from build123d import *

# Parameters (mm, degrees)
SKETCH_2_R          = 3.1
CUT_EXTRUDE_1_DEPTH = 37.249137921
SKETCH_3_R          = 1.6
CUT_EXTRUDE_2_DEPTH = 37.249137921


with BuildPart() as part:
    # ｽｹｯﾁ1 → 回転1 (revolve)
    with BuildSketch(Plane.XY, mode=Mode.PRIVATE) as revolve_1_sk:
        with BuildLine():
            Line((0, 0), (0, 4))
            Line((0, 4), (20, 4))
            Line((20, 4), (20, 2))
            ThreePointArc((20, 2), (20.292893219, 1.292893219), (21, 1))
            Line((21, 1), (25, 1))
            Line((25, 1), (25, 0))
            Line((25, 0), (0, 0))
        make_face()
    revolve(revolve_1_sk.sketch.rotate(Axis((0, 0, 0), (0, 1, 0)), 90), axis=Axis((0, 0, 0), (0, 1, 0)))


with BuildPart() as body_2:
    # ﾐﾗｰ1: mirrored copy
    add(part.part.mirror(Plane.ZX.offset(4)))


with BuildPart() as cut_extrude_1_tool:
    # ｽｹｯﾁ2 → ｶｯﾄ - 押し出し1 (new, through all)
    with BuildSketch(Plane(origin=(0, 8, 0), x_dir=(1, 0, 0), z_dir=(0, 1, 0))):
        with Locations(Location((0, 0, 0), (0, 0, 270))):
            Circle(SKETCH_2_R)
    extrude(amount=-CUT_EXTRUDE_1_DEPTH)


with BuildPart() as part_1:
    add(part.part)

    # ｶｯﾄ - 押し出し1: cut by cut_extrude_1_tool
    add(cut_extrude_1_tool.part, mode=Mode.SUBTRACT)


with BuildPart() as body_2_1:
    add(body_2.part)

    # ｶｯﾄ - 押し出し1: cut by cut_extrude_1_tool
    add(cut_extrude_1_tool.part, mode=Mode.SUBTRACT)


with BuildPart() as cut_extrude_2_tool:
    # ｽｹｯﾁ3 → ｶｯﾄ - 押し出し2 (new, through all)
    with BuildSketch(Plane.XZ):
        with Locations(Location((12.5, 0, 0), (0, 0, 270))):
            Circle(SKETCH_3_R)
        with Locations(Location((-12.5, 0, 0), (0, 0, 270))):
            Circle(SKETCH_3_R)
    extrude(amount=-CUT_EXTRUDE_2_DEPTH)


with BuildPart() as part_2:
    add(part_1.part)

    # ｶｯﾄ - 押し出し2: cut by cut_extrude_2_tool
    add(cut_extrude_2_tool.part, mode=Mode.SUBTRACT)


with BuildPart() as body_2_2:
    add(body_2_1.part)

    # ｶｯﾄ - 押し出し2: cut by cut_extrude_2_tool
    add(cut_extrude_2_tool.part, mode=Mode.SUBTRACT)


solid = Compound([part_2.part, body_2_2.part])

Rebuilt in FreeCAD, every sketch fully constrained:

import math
import FreeCAD as App
import Part
import Sketcher
Q = App.Units.Quantity

doc = App.newDocument("Part")
body = doc.addObject("PartDesign::Body", "Body")

sketch1 = body.newObject("Sketcher::SketchObject", "Sketch")
sketch1.AttachmentSupport = (doc.getObject("XY_Plane"), [""])
sketch1.MapMode = "FlatFace"
sketch1.addGeometry([
    Part.LineSegment(App.Vector(0, 4, 0), App.Vector(0, 0, 0)),
    Part.LineSegment(App.Vector(0, 0, 0), App.Vector(25, 0, 0)),
    Part.LineSegment(App.Vector(25, 0, 0), App.Vector(25, 1, 0)),
    Part.LineSegment(App.Vector(25, 1, 0), App.Vector(21, 1, 0)),
    Part.ArcOfCircle(Part.Circle(App.Vector(21, 2, 0), App.Vector(0, 0, 1), 1), math.radians(-180), math.radians(-90)),
    Part.LineSegment(App.Vector(20, 2, 0), App.Vector(20, 4, 0)),
    Part.LineSegment(App.Vector(20, 4, 0), App.Vector(0, 4, 0)),
], False)
sketch1.addConstraint([
    Sketcher.Constraint("Coincident", 0, 2, 1, 1),
    Sketcher.Constraint("Coincident", 1, 2, 2, 1),
    Sketcher.Constraint("Coincident", 2, 2, 3, 1),
    Sketcher.Constraint("Tangent", 3, 2, 4, 2),
    Sketcher.Constraint("Tangent", 4, 1, 5, 1),
    Sketcher.Constraint("Coincident", 5, 2, 6, 1),
    Sketcher.Constraint("Coincident", 6, 2, 0, 1),
    Sketcher.Constraint("Vertical", 0),
    Sketcher.Constraint("Horizontal", 1),
    Sketcher.Constraint("Vertical", 2),
    Sketcher.Constraint("Horizontal", 3),
    Sketcher.Constraint("Vertical", 5),
    Sketcher.Constraint("Horizontal", 6),
    Sketcher.Constraint("Coincident", 0, 2, -1, 1),
    Sketcher.Constraint("Equal", 3, 0),
    Sketcher.Constraint("Radius", 4, Q("1 mm")),
    Sketcher.Constraint("DistanceX", 1, 1, 1, 2, Q("25 mm")),
    Sketcher.Constraint("DistanceX", 3, 2, 3, 1, Q("4 mm")),
    Sketcher.Constraint("DistanceY", 2, 1, 2, 2, Q("1 mm")),
])
revolution = body.newObject("PartDesign::Revolution", "Revolution")
revolution.Profile = sketch1
revolution.ReferenceAxis = (sketch1, ["V_Axis"])
revolution.Angle = 360
body2 = doc.addObject("PartDesign::Body", "Body001")
doc.recompute()

mirroring = doc.addObject("Part::Mirroring", "Mirroring")
mirroring.Source = body
mirroring.Base = App.Vector(0, 4, 0)
mirroring.Normal = App.Vector(0, 1, 0)
body2.BaseFeature = mirroring
doc.recompute()
body3 = doc.addObject("PartDesign::Body", "Body002")

sketch2 = body3.newObject("Sketcher::SketchObject", "Sketch001")
sketch2.AttachmentSupport = (doc.getObject("XZ_Plane002"), [""])
sketch2.MapMode = "FlatFace"
sketch2.AttachmentOffset = App.Placement(App.Vector(0, 0, -8), App.Rotation())
sketch2.addGeometry(Part.Circle(App.Vector(0, 0, 0), App.Vector(0, 0, 1), 3.1), False)
sketch2.addConstraint([
    Sketcher.Constraint("Coincident", 0, 3, -1, 1),
    Sketcher.Constraint("Diameter", 0, Q("6.2 mm")),
])
pad1 = body3.newObject("PartDesign::Pad", "Pad")
pad1.Profile = sketch2
pad1.Length = 37.249138
doc.recompute()

body4 = doc.addObject("PartDesign::Body", "Body003")
body4.BaseFeature = body3
boolean = body.newObject("PartDesign::Boolean", "Boolean")
boolean.Type = "Cut"
boolean.addObjects([body4])
doc.recompute()

boolean2 = body2.newObject("PartDesign::Boolean", "Boolean001")
boolean2.Type = "Cut"
boolean2.addObjects([body3])
body5 = doc.addObject("PartDesign::Body", "Body004")
body5.AllowCompound = True

sketch3 = body5.newObject("Sketcher::SketchObject", "Sketch002")
sketch3.AttachmentSupport = (doc.getObject("XZ_Plane004"), [""])
sketch3.MapMode = "FlatFace"
sketch3.addGeometry([
    Part.Circle(App.Vector(12.5, 0, 0), App.Vector(0, 0, 1), 1.6),
    Part.Circle(App.Vector(-12.5, 0, 0), App.Vector(0, 0, 1), 1.6),
], False)
sketch3.addConstraint([
    Sketcher.Constraint("Equal", 0, 1),
    Sketcher.Constraint("Symmetric", 0, 3, 1, 3, -1, 1),
    Sketcher.Constraint("PointOnObject", 0, 3, -1),
    Sketcher.Constraint("Diameter", 0, Q("3.2 mm")),
    Sketcher.Constraint("DistanceX", 1, 3, 0, 3, Q("25 mm")),
])
pad2 = body5.newObject("PartDesign::Pad", "Pad001")
pad2.Profile = sketch3
pad2.Length = 37.249138
pad2.Reversed = True
doc.recompute()

body6 = doc.addObject("PartDesign::Body", "Body005")
body6.BaseFeature = body5
boolean3 = body.newObject("PartDesign::Boolean", "Boolean002")
boolean3.Type = "Cut"
boolean3.addObjects([body6])
doc.recompute()

boolean4 = body2.newObject("PartDesign::Boolean", "Boolean003")
boolean4.Type = "Cut"
boolean4.addObjects([body5])
mirroring.Visibility = False

doc.recompute()
